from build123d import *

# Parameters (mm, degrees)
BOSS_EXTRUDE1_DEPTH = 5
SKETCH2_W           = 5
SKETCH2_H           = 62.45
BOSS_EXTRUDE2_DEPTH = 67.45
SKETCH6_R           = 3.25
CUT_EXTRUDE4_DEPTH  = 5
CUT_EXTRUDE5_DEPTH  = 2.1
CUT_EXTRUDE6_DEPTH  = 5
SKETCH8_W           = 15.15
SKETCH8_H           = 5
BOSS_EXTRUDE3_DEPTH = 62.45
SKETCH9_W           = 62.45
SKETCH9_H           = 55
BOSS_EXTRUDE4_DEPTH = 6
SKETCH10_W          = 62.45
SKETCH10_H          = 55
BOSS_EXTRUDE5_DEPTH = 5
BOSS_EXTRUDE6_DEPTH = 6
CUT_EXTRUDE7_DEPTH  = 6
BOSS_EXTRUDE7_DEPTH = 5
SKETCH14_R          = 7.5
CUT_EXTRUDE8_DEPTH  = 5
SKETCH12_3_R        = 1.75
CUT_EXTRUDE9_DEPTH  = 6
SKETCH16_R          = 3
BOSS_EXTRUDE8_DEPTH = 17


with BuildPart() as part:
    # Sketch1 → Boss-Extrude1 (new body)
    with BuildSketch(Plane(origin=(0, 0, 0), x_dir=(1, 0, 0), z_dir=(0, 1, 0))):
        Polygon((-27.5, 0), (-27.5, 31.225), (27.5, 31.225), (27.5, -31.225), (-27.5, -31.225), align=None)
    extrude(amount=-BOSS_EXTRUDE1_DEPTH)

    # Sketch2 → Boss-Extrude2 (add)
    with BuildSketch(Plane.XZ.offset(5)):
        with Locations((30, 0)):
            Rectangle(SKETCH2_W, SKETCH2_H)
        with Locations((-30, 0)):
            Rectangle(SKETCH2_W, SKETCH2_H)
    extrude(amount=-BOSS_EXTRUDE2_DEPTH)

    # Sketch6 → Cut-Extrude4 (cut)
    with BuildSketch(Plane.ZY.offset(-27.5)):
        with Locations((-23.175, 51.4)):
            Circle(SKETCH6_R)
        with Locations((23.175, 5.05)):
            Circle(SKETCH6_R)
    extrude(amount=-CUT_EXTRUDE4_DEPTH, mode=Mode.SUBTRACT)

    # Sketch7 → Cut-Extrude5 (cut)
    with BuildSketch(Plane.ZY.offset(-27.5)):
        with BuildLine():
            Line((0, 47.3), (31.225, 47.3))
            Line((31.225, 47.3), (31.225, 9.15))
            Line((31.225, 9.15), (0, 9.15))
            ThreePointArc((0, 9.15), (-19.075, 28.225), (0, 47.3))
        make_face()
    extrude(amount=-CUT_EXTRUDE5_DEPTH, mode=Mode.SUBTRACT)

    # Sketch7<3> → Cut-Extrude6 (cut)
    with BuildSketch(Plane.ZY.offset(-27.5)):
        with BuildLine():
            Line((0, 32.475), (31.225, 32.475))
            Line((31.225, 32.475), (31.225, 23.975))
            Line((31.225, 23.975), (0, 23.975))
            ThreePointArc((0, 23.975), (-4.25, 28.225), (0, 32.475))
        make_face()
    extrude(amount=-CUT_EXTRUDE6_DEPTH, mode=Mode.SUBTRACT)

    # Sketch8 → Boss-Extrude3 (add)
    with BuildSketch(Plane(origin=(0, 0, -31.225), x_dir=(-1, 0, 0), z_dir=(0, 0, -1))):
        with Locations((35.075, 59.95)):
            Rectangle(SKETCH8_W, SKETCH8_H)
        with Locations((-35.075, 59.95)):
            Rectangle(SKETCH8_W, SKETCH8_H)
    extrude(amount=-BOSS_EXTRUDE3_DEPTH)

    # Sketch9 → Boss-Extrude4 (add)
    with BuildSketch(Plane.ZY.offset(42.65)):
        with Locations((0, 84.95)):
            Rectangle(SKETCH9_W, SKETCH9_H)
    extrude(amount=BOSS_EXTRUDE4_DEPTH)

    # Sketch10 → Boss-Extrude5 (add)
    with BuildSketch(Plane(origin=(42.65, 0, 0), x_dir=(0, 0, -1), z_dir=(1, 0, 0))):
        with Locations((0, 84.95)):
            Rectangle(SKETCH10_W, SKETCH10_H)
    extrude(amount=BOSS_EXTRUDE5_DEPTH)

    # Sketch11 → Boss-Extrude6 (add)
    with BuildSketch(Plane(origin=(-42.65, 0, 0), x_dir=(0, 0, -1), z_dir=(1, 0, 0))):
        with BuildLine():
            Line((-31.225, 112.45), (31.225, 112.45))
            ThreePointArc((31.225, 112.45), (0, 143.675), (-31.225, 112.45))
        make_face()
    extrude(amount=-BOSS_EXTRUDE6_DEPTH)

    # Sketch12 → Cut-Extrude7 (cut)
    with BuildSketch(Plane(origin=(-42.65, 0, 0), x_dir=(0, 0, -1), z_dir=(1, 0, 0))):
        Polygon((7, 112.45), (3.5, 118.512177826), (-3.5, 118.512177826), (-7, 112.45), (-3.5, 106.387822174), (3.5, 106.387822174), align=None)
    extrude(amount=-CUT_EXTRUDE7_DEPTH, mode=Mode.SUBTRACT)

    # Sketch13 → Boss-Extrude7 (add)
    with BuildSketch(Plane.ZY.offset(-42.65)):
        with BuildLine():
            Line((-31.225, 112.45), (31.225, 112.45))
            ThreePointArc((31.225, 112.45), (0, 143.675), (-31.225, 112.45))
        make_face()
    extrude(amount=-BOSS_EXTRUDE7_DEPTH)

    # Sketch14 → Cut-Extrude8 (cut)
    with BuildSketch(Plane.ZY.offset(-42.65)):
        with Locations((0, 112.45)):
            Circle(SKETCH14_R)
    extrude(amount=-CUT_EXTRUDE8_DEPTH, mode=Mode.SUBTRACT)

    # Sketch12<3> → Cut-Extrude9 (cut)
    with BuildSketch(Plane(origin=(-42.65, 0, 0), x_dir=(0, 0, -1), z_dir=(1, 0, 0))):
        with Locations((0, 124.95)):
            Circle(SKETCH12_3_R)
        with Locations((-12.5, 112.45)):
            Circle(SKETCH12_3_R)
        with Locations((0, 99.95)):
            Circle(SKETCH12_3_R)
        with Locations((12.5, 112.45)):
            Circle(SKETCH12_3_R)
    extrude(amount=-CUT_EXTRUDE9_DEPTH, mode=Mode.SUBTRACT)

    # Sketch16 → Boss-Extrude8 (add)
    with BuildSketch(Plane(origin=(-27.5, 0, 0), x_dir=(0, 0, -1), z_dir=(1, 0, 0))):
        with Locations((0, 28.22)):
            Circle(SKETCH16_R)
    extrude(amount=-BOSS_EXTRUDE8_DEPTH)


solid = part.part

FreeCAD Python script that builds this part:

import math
import FreeCAD as App
import Part
import Sketcher

V = App.Vector
Q = App.Units.Quantity

doc = App.newDocument("Part")
params = doc.addObject("Spreadsheet::Sheet", "Params")
for row, (alias, value) in enumerate([
    ("sketch1_width", "55 mm"),
    ("sketch1_height", "62.45 mm"),
    ("pad1_length", "5 mm"),
    ("sketch2_width", "5 mm"),
    ("sketch2_height", "62.45 mm"),
    ("pad2_length", "67.45 mm"),
    ("sketch3_diameter", "6.5 mm"),
    ("pocket1_length", "5 mm"),
    ("pocket2_length", "2.1 mm"),
    ("sketch5_radius", "4.25 mm"),
    ("pocket3_length", "5 mm"),
    ("sketch6_height", "5 mm"),
    ("sketch6_width", "15.15 mm"),
    ("pad3_length", "62.45 mm"),
    ("sketch7_width", "55 mm"),
    ("sketch7_height", "62.45 mm"),
    ("pad4_length", "6 mm"),
    ("sketch8_width", "55 mm"),
    ("sketch8_height", "62.45 mm"),
    ("pad5_length", "5 mm"),
    ("pad6_length", "6 mm"),
    ("sketch10_height", "7 mm"),
    ("sketch10_length", "7 mm"),
    ("pocket4_length", "6 mm"),
    ("pad7_length", "5 mm"),
    ("sketch12_diameter", "15 mm"),
    ("pocket5_length", "5 mm"),
    ("sketch13_diameter", "3.5 mm"),
    ("pocket6_length", "6 mm"),
    ("sketch14_diameter", "6 mm"),
    ("pad8_length", "17 mm"),
], start=1):
    params.set(f"A{row}", alias)
    params.set(f"B{row}", "=" + value)
    params.setAlias(f"B{row}", alias)

body = doc.addObject("PartDesign::Body", "Body")

# Sketch on XZ plane
sketch1 = body.newObject("Sketcher::SketchObject", "Sketch")
sketch1.AttachmentSupport = (doc.getObject("XZ_Plane"), [""])
sketch1.MapMode = "FlatFace"
sketch1.addGeometry([
    Part.LineSegment(V(-28, -31, 0), V(-28, 31, 0)),
    Part.LineSegment(V(-28, 31, 0), V(28, 31, 0)),
    Part.LineSegment(V(28, 31, 0), V(28, -31, 0)),
    Part.LineSegment(V(28, -31, 0), V(-28, -31, 0)),
], False)
sketch1.addConstraint([
    Sketcher.Constraint("Coincident", 0, 2, 1, 1),
    Sketcher.Constraint("Coincident", 1, 2, 2, 1),
    Sketcher.Constraint("Coincident", 2, 2, 3, 1),
    Sketcher.Constraint("Coincident", 3, 2, 0, 1),
    Sketcher.Constraint("Vertical", 0),
    Sketcher.Constraint("Horizontal", 1),
    Sketcher.Constraint("Vertical", 2),
    Sketcher.Constraint("Horizontal", 3),
    Sketcher.Constraint("Symmetric", 0, 2, 2, 2, -1, 1),
    Sketcher.Constraint("DistanceX", 1, 1, 1, 2, Q("55 mm")),
    Sketcher.Constraint("DistanceY", 0, 1, 0, 2, Q("62.45 mm")),
])
sketch1.setExpression("Constraints[9]", "Params.sketch1_width")
sketch1.setExpression("Constraints[10]", "Params.sketch1_height")
pad1 = body.newObject("PartDesign::Pad", "Pad")
pad1.Profile = sketch1
pad1.setExpression("Length", "Params.pad1_length")

# Sketch on XZ plane
sketch2 = body.newObject("Sketcher::SketchObject", "Sketch001")
sketch2.AttachmentSupport = (doc.getObject("XZ_Plane"), [""])
sketch2.MapMode = "FlatFace"
sketch2.AttachmentOffset = App.Placement(V(0, 0, 5), App.Rotation())
sketch2.addGeometry([
    Part.LineSegment(V(28, 31, 0), V(28, -31, 0)),  # 0
    Part.LineSegment(V(28, -31, 0), V(32, -31, 0)),  # 1
    Part.LineSegment(V(32, -31, 0), V(32, 31, 0)),  # 2
    Part.LineSegment(V(32, 31, 0), V(28, 31, 0)),  # 3
    Part.LineSegment(V(-32, 31, 0), V(-32, -31, 0)),  # 4
    Part.LineSegment(V(-32, -31, 0), V(-28, -31, 0)),  # 5
    Part.LineSegment(V(-28, -31, 0), V(-28, 31, 0)),  # 6
    Part.LineSegment(V(-28, 31, 0), V(-32, 31, 0)),  # 7
], False)
sketch2.addConstraint([
    Sketcher.Constraint("Coincident", 0, 2, 1, 1),
    Sketcher.Constraint("Coincident", 1, 2, 2, 1),
    Sketcher.Constraint("Coincident", 2, 2, 3, 1),
    Sketcher.Constraint("Coincident", 3, 2, 0, 1),
    Sketcher.Constraint("Coincident", 4, 2, 5, 1),
    Sketcher.Constraint("Coincident", 5, 2, 6, 1),
    Sketcher.Constraint("Coincident", 6, 2, 7, 1),
    Sketcher.Constraint("Coincident", 7, 2, 4, 1),
    Sketcher.Constraint("Vertical", 0),
    Sketcher.Constraint("Horizontal", 1),
    Sketcher.Constraint("Vertical", 2),
    Sketcher.Constraint("Horizontal", 3),
    Sketcher.Constraint("Vertical", 4),
    Sketcher.Constraint("Horizontal", 5),
    Sketcher.Constraint("Vertical", 6),
    Sketcher.Constraint("Horizontal", 7),
    Sketcher.Constraint("Symmetric", 2, 2, 4, 2, -1, 1),
    Sketcher.Constraint("Symmetric", 0, 2, 6, 2, -1, 1),
    Sketcher.Constraint("Horizontal", 1, 2, 4, 2),
    Sketcher.Constraint("DistanceX", 1, 1, 1, 2, Q("5 mm")),
    Sketcher.Constraint("DistanceX", 4, 2, 0, 2, Q("60 mm")),
    Sketcher.Constraint("DistanceY", 0, 2, 0, 1, Q("62.45 mm")),
])
sketch2.setExpression("Constraints[19]", "Params.sketch2_width")
sketch2.setExpression("Constraints[21]", "Params.sketch2_height")
pad2 = body.newObject("PartDesign::Pad", "Pad001")
pad2.Profile = sketch2
pad2.setExpression("Length", "Params.pad2_length")
pad2.Reversed = True

# Sketch on YZ plane
sketch3 = body.newObject("Sketcher::SketchObject", "Sketch002")
sketch3.AttachmentSupport = (doc.getObject("YZ_Plane"), [""])
sketch3.MapMode = "FlatFace"
sketch3.AttachmentOffset = App.Placement(V(0, 0, 27.5), App.Rotation())
sketch3.addGeometry([
    Part.Circle(V(51.4, -23.2, 0), V(0, 0, 1), 3.2),
    Part.Circle(V(5, 23.2, 0), V(0, 0, 1), 3.2),
], False)
sketch3.addConstraint([
    Sketcher.Constraint("Equal", 0, 1),
    Sketcher.Constraint("Diameter", 0, Q("6.5 mm")),
    Sketcher.Constraint("DistanceX", -1, 1, 0, 3, Q("51.4 mm")),
    Sketcher.Constraint("DistanceX", -1, 1, 1, 3, Q("5.05 mm")),
    Sketcher.Constraint("DistanceY", 0, 3, 1, 3, Q("46.35 mm")),
    Sketcher.Constraint("DistanceY", 0, 3, -1, 1, Q("23.175 mm")),
])
sketch3.setExpression("Constraints[1]", "Params.sketch3_diameter")
pocket1 = body.newObject("PartDesign::Pocket", "Pocket")
pocket1.Profile = sketch3
pocket1.setExpression("Length", "Params.pocket1_length")
pocket1.Reversed = True

# Sketch on YZ plane
sketch4 = body.newObject("Sketcher::SketchObject", "Sketch003")
sketch4.AttachmentSupport = (doc.getObject("YZ_Plane"), [""])
sketch4.MapMode = "FlatFace"
sketch4.AttachmentOffset = App.Placement(V(0, 0, 27.5), App.Rotation())
sketch4.addGeometry([
    Part.LineSegment(V(47, 31, 0), V(47, 0, 0)),
    Part.ArcOfCircle(Part.Circle(V(28, 0, 0), V(0, 0, 1), 19), math.radians(180), math.radians(360)),
    Part.LineSegment(V(9, 0, 0), V(9, 31, 0)),
    Part.LineSegment(V(9, 31, 0), V(47, 31, 0)),
], False)
sketch4.addConstraint([
    Sketcher.Constraint("Tangent", 0, 2, 1, 2),
    Sketcher.Constraint("Tangent", 1, 1, 2, 1),
    Sketcher.Constraint("Coincident", 2, 2, 3, 1),
    Sketcher.Constraint("Coincident", 3, 2, 0, 1),
    Sketcher.Constraint("Vertical", 0),
    Sketcher.Constraint("Vertical", 2),
    Sketcher.Constraint("Horizontal", 3),
    Sketcher.Constraint("PointOnObject", 1, 3, -1),
    Sketcher.Constraint("Radius", 1, Q("19.075 mm")),
    Sketcher.Constraint("DistanceX", -1, 1, 0, 2, Q("47.3 mm")),
    Sketcher.Constraint("DistanceY", 0, 2, 0, 1, Q("31.225 mm")),
])
pocket2 = body.newObject("PartDesign::Pocket", "Pocket001")
pocket2.Profile = sketch4
pocket2.setExpression("Length", "Params.pocket2_length")
pocket2.Reversed = True

# Sketch on YZ plane
sketch5 = body.newObject("Sketcher::SketchObject", "Sketch004")
sketch5.AttachmentSupport = (doc.getObject("YZ_Plane"), [""])
sketch5.MapMode = "FlatFace"
sketch5.AttachmentOffset = App.Placement(V(0, 0, 27.5), App.Rotation())
sketch5.addGeometry([
    Part.LineSegment(V(32.5, 31.2, 0), V(32.5, 0, 0)),
    Part.ArcOfCircle(Part.Circle(V(28.2, 0, 0), V(0, 0, 1), 4.2), math.radians(180), math.radians(360)),
    Part.LineSegment(V(24, 0, 0), V(24, 31.2, 0)),
    Part.LineSegment(V(24, 31.2, 0), V(32.5, 31.2, 0)),
], False)
sketch5.addConstraint([
    Sketcher.Constraint("Tangent", 0, 2, 1, 2),
    Sketcher.Constraint("Tangent", 1, 1, 2, 1),
    Sketcher.Constraint("Coincident", 2, 2, 3, 1),
    Sketcher.Constraint("Coincident", 3, 2, 0, 1),
    Sketcher.Constraint("Vertical", 0),
    Sketcher.Constraint("Vertical", 2),
    Sketcher.Constraint("Horizontal", 3),
    Sketcher.Constraint("PointOnObject", 1, 3, -1),
    Sketcher.Constraint("Radius", 1, Q("4.25 mm")),
    Sketcher.Constraint("DistanceY", 0, 2, 0, 1, Q("31.225 mm")),
    Sketcher.Constraint("DistanceX", -1, 1, 1, 3, Q("28.225 mm")),
])
sketch5.setExpression("Constraints[8]", "Params.sketch5_radius")
pocket3 = body.newObject("PartDesign::Pocket", "Pocket002")
pocket3.Profile = sketch5
pocket3.setExpression("Length", "Params.pocket3_length")
pocket3.Reversed = True

# Sketch on XY plane
sketch6 = body.newObject("Sketcher::SketchObject", "Sketch005")
sketch6.AttachmentSupport = (doc.getObject("XY_Plane"), [""])
sketch6.MapMode = "FlatFace"
sketch6.AttachmentOffset = App.Placement(V(0, 0, -31.225), App.Rotation())
sketch6.addGeometry([
    Part.LineSegment(V(-28, 62, 0), V(-28, 57, 0)),  # 0
    Part.LineSegment(V(-28, 57, 0), V(-43, 57, 0)),  # 1
    Part.LineSegment(V(-43, 57, 0), V(-43, 62, 0)),  # 2
    Part.LineSegment(V(-43, 62, 0), V(-28, 62, 0)),  # 3
    Part.LineSegment(V(43, 62, 0), V(43, 57, 0)),  # 4
    Part.LineSegment(V(43, 57, 0), V(28, 57, 0)),  # 5
    Part.LineSegment(V(28, 57, 0), V(28, 62, 0)),  # 6
    Part.LineSegment(V(28, 62, 0), V(43, 62, 0)),  # 7
], False)
sketch6.addConstraint([
    Sketcher.Constraint("Coincident", 0, 2, 1, 1),
    Sketcher.Constraint("Coincident", 1, 2, 2, 1),
    Sketcher.Constraint("Coincident", 2, 2, 3, 1),
    Sketcher.Constraint("Coincident", 3, 2, 0, 1),
    Sketcher.Constraint("Coincident", 4, 2, 5, 1),
    Sketcher.Constraint("Coincident", 5, 2, 6, 1),
    Sketcher.Constraint("Coincident", 6, 2, 7, 1),
    Sketcher.Constraint("Coincident", 7, 2, 4, 1),
    Sketcher.Constraint("Vertical", 0),
    Sketcher.Constraint("Horizontal", 1),
    Sketcher.Constraint("Vertical", 2),
    Sketcher.Constraint("Horizontal", 3),
    Sketcher.Constraint("Vertical", 4),
    Sketcher.Constraint("Horizontal", 5),
    Sketcher.Constraint("Vertical", 6),
    Sketcher.Constraint("Horizontal", 7),
    Sketcher.Constraint("Symmetric", 1, 2, 4, 2, -2),
    Sketcher.Constraint("Symmetric", 3, 2, 6, 2, -2),
    Sketcher.Constraint("DistanceY", 0, 2, 0, 1, Q("5 mm")),
    Sketcher.Constraint("DistanceX", 0, 2, 5, 2, Q("55 mm")),
    Sketcher.Constraint("DistanceX", 1, 2, 1, 1, Q("15.15 mm")),
    Sketcher.Constraint("DistanceY", -1, 1, 0, 2, Q("57.45 mm")),
])
sketch6.setExpression("Constraints[18]", "Params.sketch6_height")
sketch6.setExpression("Constraints[20]", "Params.sketch6_width")
pad3 = body.newObject("PartDesign::Pad", "Pad002")
pad3.Profile = sketch6
pad3.setExpression("Length", "Params.pad3_length")

# Sketch on YZ plane
sketch7 = body.newObject("Sketcher::SketchObject", "Sketch006")
sketch7.AttachmentSupport = (doc.getObject("YZ_Plane"), [""])
sketch7.MapMode = "FlatFace"
sketch7.AttachmentOffset = App.Placement(V(0, 0, -42.65), App.Rotation())
sketch7.addGeometry([
    Part.LineSegment(V(112, -31, 0), V(57, -31, 0)),
    Part.LineSegment(V(57, -31, 0), V(57, 31, 0)),
    Part.LineSegment(V(57, 31, 0), V(112, 31, 0)),
    Part.LineSegment(V(112, 31, 0), V(112, -31, 0)),
], False)
sketch7.addConstraint([
    Sketcher.Constraint("Coincident", 0, 2, 1, 1),
    Sketcher.Constraint("Coincident", 1, 2, 2, 1),
    Sketcher.Constraint("Coincident", 2, 2, 3, 1),
    Sketcher.Constraint("Coincident", 3, 2, 0, 1),
    Sketcher.Constraint("Horizontal", 0),
    Sketcher.Constraint("Vertical", 1),
    Sketcher.Constraint("Horizontal", 2),
    Sketcher.Constraint("Vertical", 3),
    Sketcher.Constraint("DistanceX", 0, 2, 0, 1, Q("55 mm")),
    Sketcher.Constraint("DistanceY", 1, 1, 1, 2, Q("62.45 mm")),
    Sketcher.Constraint("DistanceX", -1, 1, 0, 2, Q("57.45 mm")),
    Sketcher.Constraint("DistanceY", 0, 2, -1, 1, Q("31.225 mm")),
])
sketch7.setExpression("Constraints[8]", "Params.sketch7_width")
sketch7.setExpression("Constraints[9]", "Params.sketch7_height")
pad4 = body.newObject("PartDesign::Pad", "Pad003")
pad4.Profile = sketch7
pad4.setExpression("Length", "Params.pad4_length")
pad4.Reversed = True

# Sketch on YZ plane
sketch8 = body.newObject("Sketcher::SketchObject", "Sketch007")
sketch8.AttachmentSupport = (doc.getObject("YZ_Plane"), [""])
sketch8.MapMode = "FlatFace"
sketch8.AttachmentOffset = App.Placement(V(0, 0, 42.65), App.Rotation())
sketch8.addGeometry([
    Part.LineSegment(V(112, 31, 0), V(57, 31, 0)),
    Part.LineSegment(V(57, 31, 0), V(57, -31, 0)),
    Part.LineSegment(V(57, -31, 0), V(112, -31, 0)),
    Part.LineSegment(V(112, -31, 0), V(112, 31, 0)),
], False)
sketch8.addConstraint([
    Sketcher.Constraint("Coincident", 0, 2, 1, 1),
    Sketcher.Constraint("Coincident", 1, 2, 2, 1),
    Sketcher.Constraint("Coincident", 2, 2, 3, 1),
    Sketcher.Constraint("Coincident", 3, 2, 0, 1),
    Sketcher.Constraint("Horizontal", 0),
    Sketcher.Constraint("Vertical", 1),
    Sketcher.Constraint("Horizontal", 2),
    Sketcher.Constraint("Vertical", 3),
    Sketcher.Constraint("DistanceX", 0, 2, 0, 1, Q("55 mm")),
    Sketcher.Constraint("DistanceY", 1, 2, 1, 1, Q("62.45 mm")),
    Sketcher.Constraint("DistanceX", -1, 1, 0, 2, Q("57.45 mm")),
    Sketcher.Constraint("DistanceY", -1, 1, 0, 2, Q("31.225 mm")),
])
sketch8.setExpression("Constraints[8]", "Params.sketch8_width")
sketch8.setExpression("Constraints[9]", "Params.sketch8_height")
pad5 = body.newObject("PartDesign::Pad", "Pad004")
pad5.Profile = sketch8
pad5.setExpression("Length", "Params.pad5_length")

# Sketch on YZ plane
sketch9 = body.newObject("Sketcher::SketchObject", "Sketch008")
sketch9.AttachmentSupport = (doc.getObject("YZ_Plane"), [""])
sketch9.MapMode = "FlatFace"
sketch9.AttachmentOffset = App.Placement(V(0, 0, -42.65), App.Rotation())
sketch9.addGeometry([
    Part.LineSegment(V(112, 31, 0), V(112, -31, 0)),
    Part.ArcOfCircle(Part.Circle(V(112, 0, 0), V(0, 0, 1), 31), math.radians(-90), math.radians(90)),
], False)
sketch9.addConstraint([
    Sketcher.Constraint("Coincident", 0, 1, 1, 2),
    Sketcher.Constraint("Coincident", 1, 1, 0, 2),
    Sketcher.Constraint("Vertical", 0),
    Sketcher.Constraint("PointOnObject", 1, 3, -1),
    Sketcher.Constraint("Vertical", 1, 3, 0, 1),
    Sketcher.Constraint("Radius", 1, Q("31.225 mm")),
    Sketcher.Constraint("DistanceX", -1, 1, 1, 3, Q("112.45 mm")),
])
pad6 = body.newObject("PartDesign::Pad", "Pad005")
pad6.Profile = sketch9
pad6.setExpression("Length", "Params.pad6_length")
pad6.Reversed = True

# Sketch on YZ plane
sketch10 = body.newObject("Sketcher::SketchObject", "Sketch009")
sketch10.AttachmentSupport = (doc.getObject("YZ_Plane"), [""])
sketch10.MapMode = "FlatFace"
sketch10.AttachmentOffset = App.Placement(V(0, 0, -42.65), App.Rotation())
sketch10.addGeometry([
    Part.LineSegment(V(112, -7, 0), V(119, -4, 0)),  # 0
    Part.LineSegment(V(119, -4, 0), V(119, 4, 0)),  # 1
    Part.LineSegment(V(119, 4, 0), V(112, 7, 0)),  # 2
    Part.LineSegment(V(112, 7, 0), V(106, 4, 0)),  # 3
    Part.LineSegment(V(106, 4, 0), V(106, -4, 0)),  # 4
    Part.LineSegment(V(106, -4, 0), V(112, -7, 0)),  # 5
], False)
sketch10.addConstraint([
    Sketcher.Constraint("Coincident", 0, 2, 1, 1),
    Sketcher.Constraint("Coincident", 1, 2, 2, 1),
    Sketcher.Constraint("Coincident", 2, 2, 3, 1),
    Sketcher.Constraint("Coincident", 3, 2, 4, 1),
    Sketcher.Constraint("Coincident", 4, 2, 5, 1),
    Sketcher.Constraint("Coincident", 5, 2, 0, 1),
    Sketcher.Constraint("Vertical", 1),
    Sketcher.Constraint("Vertical", 4),
    Sketcher.Constraint("Symmetric", 2, 2, 5, 2, -1),
    Sketcher.Constraint("Parallel", 0, 3),
    Sketcher.Constraint("Parallel", 2, 5),
    Sketcher.Constraint("Horizontal", 1, 2, 3, 2),
    Sketcher.Constraint("Horizontal", 0, 2, 4, 2),
    Sketcher.Constraint("DistanceY", 1, 1, 1, 2, Q("7 mm")),
    Sketcher.Constraint("Angle", 0, Q("30 deg")),
    Sketcher.Constraint("Distance", 0, Q("7 mm")),
    Sketcher.Constraint("DistanceX", -1, 1, 2, 2, Q("112.45 mm")),
])
sketch10.setExpression("Constraints[13]", "Params.sketch10_height")
sketch10.setExpression("Constraints[15]", "Params.sketch10_length")
pocket4 = body.newObject("PartDesign::Pocket", "Pocket003")
pocket4.Profile = sketch10
pocket4.setExpression("Length", "Params.pocket4_length")

# Sketch on YZ plane
sketch11 = body.newObject("Sketcher::SketchObject", "Sketch010")
sketch11.AttachmentSupport = (doc.getObject("YZ_Plane"), [""])
sketch11.MapMode = "FlatFace"
sketch11.AttachmentOffset = App.Placement(V(0, 0, 42.65), App.Rotation())
sketch11.addGeometry([
    Part.LineSegment(V(112, -31, 0), V(112, 31, 0)),
    Part.ArcOfCircle(Part.Circle(V(112, 0, 0), V(0, 0, 1), 31), math.radians(-90), math.radians(90)),
], False)
sketch11.addConstraint([
    Sketcher.Constraint("Coincident", 0, 1, 1, 1),
    Sketcher.Constraint("Coincident", 1, 2, 0, 2),
    Sketcher.Constraint("Vertical", 0),
    Sketcher.Constraint("PointOnObject", 1, 3, -1),
    Sketcher.Constraint("Vertical", 1, 3, 0, 1),
    Sketcher.Constraint("Radius", 1, Q("31.225 mm")),
    Sketcher.Constraint("DistanceX", -1, 1, 1, 3, Q("112.45 mm")),
])
pad7 = body.newObject("PartDesign::Pad", "Pad006")
pad7.Profile = sketch11
pad7.setExpression("Length", "Params.pad7_length")

# Sketch on YZ plane
sketch12 = body.newObject("Sketcher::SketchObject", "Sketch011")
sketch12.AttachmentSupport = (doc.getObject("YZ_Plane"), [""])
sketch12.MapMode = "FlatFace"
sketch12.AttachmentOffset = App.Placement(V(0, 0, 42.65), App.Rotation())
sketch12.addGeometry(Part.Circle(V(112, 0, 0), V(0, 0, 1), 8), False)
sketch12.addConstraint([
    Sketcher.Constraint("PointOnObject", 0, 3, -1),
    Sketcher.Constraint("Diameter", 0, Q("15 mm")),
    Sketcher.Constraint("DistanceX", -1, 1, 0, 3, Q("112.45 mm")),
])
sketch12.setExpression("Constraints[1]", "Params.sketch12_diameter")
pocket5 = body.newObject("PartDesign::Pocket", "Pocket004")
pocket5.Profile = sketch12
pocket5.setExpression("Length", "Params.pocket5_length")
pocket5.Reversed = True

# Sketch on YZ plane
sketch13 = body.newObject("Sketcher::SketchObject", "Sketch012")
sketch13.AttachmentSupport = (doc.getObject("YZ_Plane"), [""])
sketch13.MapMode = "FlatFace"
sketch13.AttachmentOffset = App.Placement(V(0, 0, -42.65), App.Rotation())
sketch13.addGeometry([
    Part.Circle(V(125, 0, 0), V(0, 0, 1), 1.8),
    Part.Circle(V(112.5, 12.5, 0), V(0, 0, 1), 1.8),
    Part.Circle(V(100, 0, 0), V(0, 0, 1), 1.8),
    Part.Circle(V(112.5, -12.5, 0), V(0, 0, 1), 1.8),
], False)
sketch13.addConstraint([
    Sketcher.Constraint("Equal", 0, 1),
    Sketcher.Constraint("Equal", 1, 2),
    Sketcher.Constraint("Equal", 2, 3),
    Sketcher.Constraint("Symmetric", 1, 3, 3, 3, -1),
    Sketcher.Constraint("PointOnObject", 0, 3, -1),
    Sketcher.Constraint("PointOnObject", 2, 3, -1),
    Sketcher.Constraint("Diameter", 0, Q("3.5 mm")),
    Sketcher.Constraint("DistanceX", 2, 3, 0, 3, Q("25 mm")),
    Sketcher.Constraint("DistanceY", 3, 3, 1, 3, Q("25 mm")),
    Sketcher.Constraint("DistanceX", 1, 3, 0, 3, Q("12.5 mm")),
    Sketcher.Constraint("DistanceX", -1, 1, 0, 3, Q("124.95 mm")),
])
sketch13.setExpression("Constraints[6]", "Params.sketch13_diameter")
pocket6 = body.newObject("PartDesign::Pocket", "Pocket005")
pocket6.Profile = sketch13
pocket6.setExpression("Length", "Params.pocket6_length")

# Sketch on YZ plane
sketch14 = body.newObject("Sketcher::SketchObject", "Sketch013")
sketch14.AttachmentSupport = (doc.getObject("YZ_Plane"), [""])
sketch14.MapMode = "FlatFace"
sketch14.AttachmentOffset = App.Placement(V(0, 0, -27.5), App.Rotation())
sketch14.addGeometry(Part.Circle(V(28.2, 0, 0), V(0, 0, 1), 3), False)
sketch14.addConstraint([
    Sketcher.Constraint("PointOnObject", 0, 3, -1),
    Sketcher.Constraint("Diameter", 0, Q("6 mm")),
    Sketcher.Constraint("DistanceX", -1, 1, 0, 3, Q("28.22 mm")),
])
sketch14.setExpression("Constraints[1]", "Params.sketch14_diameter")
pad8 = body.newObject("PartDesign::Pad", "Pad007")
pad8.Profile = sketch14
pad8.setExpression("Length", "Params.pad8_length")
pad8.Reversed = True

doc.recompute()
